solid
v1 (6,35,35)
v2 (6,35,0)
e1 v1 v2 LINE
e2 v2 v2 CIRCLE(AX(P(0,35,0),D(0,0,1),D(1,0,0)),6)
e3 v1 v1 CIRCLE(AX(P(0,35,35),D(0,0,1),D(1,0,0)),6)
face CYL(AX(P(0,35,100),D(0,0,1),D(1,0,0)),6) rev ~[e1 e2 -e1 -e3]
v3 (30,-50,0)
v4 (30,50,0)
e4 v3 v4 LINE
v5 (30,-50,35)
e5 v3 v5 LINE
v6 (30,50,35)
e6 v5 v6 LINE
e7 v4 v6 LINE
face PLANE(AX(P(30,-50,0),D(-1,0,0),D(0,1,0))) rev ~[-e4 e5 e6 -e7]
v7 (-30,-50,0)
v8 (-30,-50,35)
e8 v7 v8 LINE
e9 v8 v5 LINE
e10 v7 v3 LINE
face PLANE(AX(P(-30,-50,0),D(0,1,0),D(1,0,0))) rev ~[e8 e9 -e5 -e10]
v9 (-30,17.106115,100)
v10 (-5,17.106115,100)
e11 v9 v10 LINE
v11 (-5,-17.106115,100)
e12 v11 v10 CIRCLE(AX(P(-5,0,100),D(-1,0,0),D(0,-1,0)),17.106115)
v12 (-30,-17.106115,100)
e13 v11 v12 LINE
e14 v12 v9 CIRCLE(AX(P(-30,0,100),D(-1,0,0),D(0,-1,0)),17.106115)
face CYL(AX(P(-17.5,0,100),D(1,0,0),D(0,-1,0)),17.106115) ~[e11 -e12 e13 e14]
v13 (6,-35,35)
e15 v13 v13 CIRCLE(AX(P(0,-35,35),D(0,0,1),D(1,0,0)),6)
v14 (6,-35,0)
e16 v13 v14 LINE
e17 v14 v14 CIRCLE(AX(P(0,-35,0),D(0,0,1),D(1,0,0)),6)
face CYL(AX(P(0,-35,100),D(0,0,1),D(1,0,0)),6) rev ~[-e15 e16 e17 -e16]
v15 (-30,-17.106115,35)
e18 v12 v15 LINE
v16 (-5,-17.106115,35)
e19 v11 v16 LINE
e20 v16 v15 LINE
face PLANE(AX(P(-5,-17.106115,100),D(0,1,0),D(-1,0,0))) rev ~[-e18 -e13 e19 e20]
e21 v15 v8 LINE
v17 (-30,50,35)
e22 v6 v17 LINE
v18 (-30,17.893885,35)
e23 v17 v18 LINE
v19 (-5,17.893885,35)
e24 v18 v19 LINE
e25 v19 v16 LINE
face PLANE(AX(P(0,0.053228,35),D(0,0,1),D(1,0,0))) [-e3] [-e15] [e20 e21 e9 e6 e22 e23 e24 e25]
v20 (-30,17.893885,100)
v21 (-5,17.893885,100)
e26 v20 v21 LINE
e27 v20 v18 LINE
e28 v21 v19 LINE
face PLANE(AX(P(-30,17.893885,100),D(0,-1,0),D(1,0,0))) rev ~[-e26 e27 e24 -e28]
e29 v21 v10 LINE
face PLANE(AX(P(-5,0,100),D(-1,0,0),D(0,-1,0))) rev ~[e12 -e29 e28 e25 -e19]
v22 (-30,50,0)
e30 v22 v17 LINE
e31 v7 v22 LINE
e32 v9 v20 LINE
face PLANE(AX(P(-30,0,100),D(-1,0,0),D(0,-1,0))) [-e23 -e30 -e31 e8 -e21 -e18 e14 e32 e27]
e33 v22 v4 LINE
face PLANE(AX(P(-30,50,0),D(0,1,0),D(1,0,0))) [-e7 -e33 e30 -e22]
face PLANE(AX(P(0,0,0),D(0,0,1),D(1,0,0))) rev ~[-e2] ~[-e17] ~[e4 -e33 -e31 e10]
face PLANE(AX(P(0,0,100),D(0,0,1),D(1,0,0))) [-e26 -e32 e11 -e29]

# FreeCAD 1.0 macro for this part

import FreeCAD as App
import Part
import Sketcher
Q = App.Units.Quantity


def add_polygon(sketch, points):
    """Adds a closed chain of lines whose ends are joined by coincident constraints."""
    first, n = sketch.GeometryCount, len(points)
    for a, b in zip(points, points[1:] + points[:1]):
        sketch.addGeometry(Part.LineSegment(App.Vector(*a, 0), App.Vector(*b, 0)), False)
    for i in range(n):
        sketch.addConstraint(Sketcher.Constraint("Coincident", first + i, 2, first + (i + 1) % n, 1))

doc = App.newDocument("Part")
params = doc.addObject("Spreadsheet::Sheet", "Params")
for row, (alias, value) in enumerate([
    ("sketch1_width", "60 mm"),
    ("sketch1_height", "100 mm"),
    ("pad1_length", "100 mm"),
    ("sketch2_diameter", "12 mm"),
    ("pocket1_length", "100 mm"),
    ("sketch3_diameter", "12 mm"),
    ("sketch3_width", "25 mm"),
    ("sketch3_width2", "60 mm"),
    ("sketch3_height", "35 mm"),
    ("sketch3_height2", "100 mm"),
    ("pocket2_length", "65 mm"),
    ("sketch4_width", "25 mm"),
    ("revolution_angle", "180 deg"),
], start=1):
    params.set(f"A{row}", alias)
    params.set(f"B{row}", "=" + value)
    params.setAlias(f"B{row}", alias)

body = doc.addObject("PartDesign::Body", "Body")

sketch1 = body.newObject("Sketcher::SketchObject", "Sketch")
sketch1.AttachmentSupport = (doc.getObject("XY_Plane"), [""])
sketch1.MapMode = "FlatFace"
add_polygon(sketch1, [(-30, 50), (-30, -50), (30, -50), (30, 50)])
sketch1.addConstraint(Sketcher.Constraint("Vertical", 0))
sketch1.addConstraint(Sketcher.Constraint("Horizontal", 1))
sketch1.addConstraint(Sketcher.Constraint("Vertical", 2))
sketch1.addConstraint(Sketcher.Constraint("Horizontal", 3))
sketch1.addConstraint(Sketcher.Constraint("Symmetric", 0, 2, 2, 2, -1, 1))
sketch1.addConstraint(Sketcher.Constraint("DistanceX", 1, 1, 1, 2, Q("60 mm")))
sketch1.addConstraint(Sketcher.Constraint("DistanceY", 0, 2, 0, 1, Q("100 mm")))
sketch1.setExpression("Constraints[9]", "Params.sketch1_width")
sketch1.setExpression("Constraints[10]", "Params.sketch1_height")
pad1 = body.newObject("PartDesign::Pad", "Pad")
pad1.Profile = sketch1
pad1.setExpression("Length", "Params.pad1_length")

sketch2 = body.newObject("Sketcher::SketchObject", "Sketch001")
sketch2.AttachmentSupport = (doc.getObject("XY_Plane"), [""])
sketch2.MapMode = "FlatFace"
sketch2.AttachmentOffset = App.Placement(App.Vector(0, 0, 100), App.Rotation())
sketch2.addGeometry(Part.Circle(App.Vector(0, 35, 0), App.Vector(0, 0, 1), 6), False)
sketch2.addGeometry(Part.Circle(App.Vector(0, -35, 0), App.Vector(0, 0, 1), 6), False)
sketch2.addConstraint(Sketcher.Constraint("Equal", 0, 1))
sketch2.addConstraint(Sketcher.Constraint("Symmetric", 0, 3, 1, 3, -1, 1))
sketch2.addConstraint(Sketcher.Constraint("PointOnObject", 0, 3, -2))
sketch2.addConstraint(Sketcher.Constraint("Diameter", 0, Q("12 mm")))
sketch2.addConstraint(Sketcher.Constraint("DistanceY", -1, 1, 0, 3, Q("35 mm")))
sketch2.setExpression("Constraints[3]", "Params.sketch2_diameter")
pocket1 = body.newObject("PartDesign::Pocket", "Pocket")
pocket1.Profile = sketch2
pocket1.setExpression("Length", "Params.pocket1_length")

sketch3 = body.newObject("Sketcher::SketchObject", "Sketch002")
sketch3.AttachmentSupport = (doc.getObject("XY_Plane"), [""])
sketch3.MapMode = "FlatFace"
sketch3.AttachmentOffset = App.Placement(App.Vector(0, 0, 100), App.Rotation())
add_polygon(sketch3, [(-30, 50), (-30, 17.893885), (-5, 17.893885), (-5, -17.106115), (-30, -17.106115), (-30, -50), (30, -50), (30, 50)])
sketch3.addGeometry(Part.Circle(App.Vector(0, -35, 0), App.Vector(0, 0, 1), 6), False)
sketch3.addGeometry(Part.Circle(App.Vector(0, 35, 0), App.Vector(0, 0, 1), 6), False)
sketch3.addConstraint(Sketcher.Constraint("Vertical", 0))
sketch3.addConstraint(Sketcher.Constraint("Horizontal", 1))
sketch3.addConstraint(Sketcher.Constraint("Vertical", 2))
sketch3.addConstraint(Sketcher.Constraint("Horizontal", 3))
sketch3.addConstraint(Sketcher.Constraint("Vertical", 4))
sketch3.addConstraint(Sketcher.Constraint("Horizontal", 5))
sketch3.addConstraint(Sketcher.Constraint("Vertical", 6))
sketch3.addConstraint(Sketcher.Constraint("Horizontal", 7))
sketch3.addConstraint(Sketcher.Constraint("Equal", 8, 9))
sketch3.addConstraint(Sketcher.Constraint("Symmetric", 8, 3, 9, 3, -1, 1))
sketch3.addConstraint(Sketcher.Constraint("Symmetric", 4, 2, 6, 2, -1, 1))
sketch3.addConstraint(Sketcher.Constraint("PointOnObject", 8, 3, -2))
sketch3.addConstraint(Sketcher.Constraint("Vertical", 0, 2, 3, 2))
sketch3.addConstraint(Sketcher.Constraint("Diameter", 8, Q("12 mm")))
sketch3.addConstraint(Sketcher.Constraint("DistanceX", 1, 1, 1, 2, Q("25 mm")))
sketch3.addConstraint(Sketcher.Constraint("DistanceX", 5, 1, 5, 2, Q("60 mm")))
sketch3.addConstraint(Sketcher.Constraint("DistanceY", 2, 2, 2, 1, Q("35 mm")))
sketch3.addConstraint(Sketcher.Constraint("DistanceY", 6, 1, 6, 2, Q("100 mm")))
sketch3.addConstraint(Sketcher.Constraint("DistanceY", 8, 3, -1, 1, Q("35 mm")))
sketch3.addConstraint(Sketcher.Constraint("DistanceY", 0, 2, 0, 1, Q("32.106115 mm")))
sketch3.setExpression("Constraints[21]", "Params.sketch3_diameter")
sketch3.setExpression("Constraints[22]", "Params.sketch3_width")
sketch3.setExpression("Constraints[23]", "Params.sketch3_width2")
sketch3.setExpression("Constraints[24]", "Params.sketch3_height")
sketch3.setExpression("Constraints[25]", "Params.sketch3_height2")
pocket2 = body.newObject("PartDesign::Pocket", "Pocket001")
pocket2.Profile = sketch3
pocket2.setExpression("Length", "Params.pocket2_length")

sketch4 = body.newObject("Sketcher::SketchObject", "Sketch003")
sketch4.AttachmentSupport = (doc.getObject("XY_Plane"), [""])
sketch4.MapMode = "FlatFace"
sketch4.AttachmentOffset = App.Placement(App.Vector(0, 0, 100), App.Rotation())
add_polygon(sketch4, [(-30, 0), (-30, -17.106115), (-5, -17.106115), (-5, 0)])
sketch4.addConstraint(Sketcher.Constraint("Vertical", 0))
sketch4.addConstraint(Sketcher.Constraint("Horizontal", 1))
sketch4.addConstraint(Sketcher.Constraint("Vertical", 2))
sketch4.addConstraint(Sketcher.Constraint("Horizontal", 3))
sketch4.addConstraint(Sketcher.Constraint("PointOnObject", 2, 2, -1))
sketch4.addConstraint(Sketcher.Constraint("DistanceX", 1, 1, 1, 2, Q("25 mm")))
sketch4.addConstraint(Sketcher.Constraint("DistanceX", 0, 2, -1, 1, Q("30 mm")))
sketch4.addConstraint(Sketcher.Constraint("DistanceY", 0, 2, 0, 1, Q("17.106115 mm")))
sketch4.setExpression("Constraints[9]", "Params.sketch4_width")
revolution = body.newObject("PartDesign::Revolution", "Revolution")
revolution.Profile = sketch4
revolution.ReferenceAxis = (sketch4, ["H_Axis"])
revolution.setExpression("Angle", "Params.revolution_angle")
revolution.Reversed = True

doc.recompute()
